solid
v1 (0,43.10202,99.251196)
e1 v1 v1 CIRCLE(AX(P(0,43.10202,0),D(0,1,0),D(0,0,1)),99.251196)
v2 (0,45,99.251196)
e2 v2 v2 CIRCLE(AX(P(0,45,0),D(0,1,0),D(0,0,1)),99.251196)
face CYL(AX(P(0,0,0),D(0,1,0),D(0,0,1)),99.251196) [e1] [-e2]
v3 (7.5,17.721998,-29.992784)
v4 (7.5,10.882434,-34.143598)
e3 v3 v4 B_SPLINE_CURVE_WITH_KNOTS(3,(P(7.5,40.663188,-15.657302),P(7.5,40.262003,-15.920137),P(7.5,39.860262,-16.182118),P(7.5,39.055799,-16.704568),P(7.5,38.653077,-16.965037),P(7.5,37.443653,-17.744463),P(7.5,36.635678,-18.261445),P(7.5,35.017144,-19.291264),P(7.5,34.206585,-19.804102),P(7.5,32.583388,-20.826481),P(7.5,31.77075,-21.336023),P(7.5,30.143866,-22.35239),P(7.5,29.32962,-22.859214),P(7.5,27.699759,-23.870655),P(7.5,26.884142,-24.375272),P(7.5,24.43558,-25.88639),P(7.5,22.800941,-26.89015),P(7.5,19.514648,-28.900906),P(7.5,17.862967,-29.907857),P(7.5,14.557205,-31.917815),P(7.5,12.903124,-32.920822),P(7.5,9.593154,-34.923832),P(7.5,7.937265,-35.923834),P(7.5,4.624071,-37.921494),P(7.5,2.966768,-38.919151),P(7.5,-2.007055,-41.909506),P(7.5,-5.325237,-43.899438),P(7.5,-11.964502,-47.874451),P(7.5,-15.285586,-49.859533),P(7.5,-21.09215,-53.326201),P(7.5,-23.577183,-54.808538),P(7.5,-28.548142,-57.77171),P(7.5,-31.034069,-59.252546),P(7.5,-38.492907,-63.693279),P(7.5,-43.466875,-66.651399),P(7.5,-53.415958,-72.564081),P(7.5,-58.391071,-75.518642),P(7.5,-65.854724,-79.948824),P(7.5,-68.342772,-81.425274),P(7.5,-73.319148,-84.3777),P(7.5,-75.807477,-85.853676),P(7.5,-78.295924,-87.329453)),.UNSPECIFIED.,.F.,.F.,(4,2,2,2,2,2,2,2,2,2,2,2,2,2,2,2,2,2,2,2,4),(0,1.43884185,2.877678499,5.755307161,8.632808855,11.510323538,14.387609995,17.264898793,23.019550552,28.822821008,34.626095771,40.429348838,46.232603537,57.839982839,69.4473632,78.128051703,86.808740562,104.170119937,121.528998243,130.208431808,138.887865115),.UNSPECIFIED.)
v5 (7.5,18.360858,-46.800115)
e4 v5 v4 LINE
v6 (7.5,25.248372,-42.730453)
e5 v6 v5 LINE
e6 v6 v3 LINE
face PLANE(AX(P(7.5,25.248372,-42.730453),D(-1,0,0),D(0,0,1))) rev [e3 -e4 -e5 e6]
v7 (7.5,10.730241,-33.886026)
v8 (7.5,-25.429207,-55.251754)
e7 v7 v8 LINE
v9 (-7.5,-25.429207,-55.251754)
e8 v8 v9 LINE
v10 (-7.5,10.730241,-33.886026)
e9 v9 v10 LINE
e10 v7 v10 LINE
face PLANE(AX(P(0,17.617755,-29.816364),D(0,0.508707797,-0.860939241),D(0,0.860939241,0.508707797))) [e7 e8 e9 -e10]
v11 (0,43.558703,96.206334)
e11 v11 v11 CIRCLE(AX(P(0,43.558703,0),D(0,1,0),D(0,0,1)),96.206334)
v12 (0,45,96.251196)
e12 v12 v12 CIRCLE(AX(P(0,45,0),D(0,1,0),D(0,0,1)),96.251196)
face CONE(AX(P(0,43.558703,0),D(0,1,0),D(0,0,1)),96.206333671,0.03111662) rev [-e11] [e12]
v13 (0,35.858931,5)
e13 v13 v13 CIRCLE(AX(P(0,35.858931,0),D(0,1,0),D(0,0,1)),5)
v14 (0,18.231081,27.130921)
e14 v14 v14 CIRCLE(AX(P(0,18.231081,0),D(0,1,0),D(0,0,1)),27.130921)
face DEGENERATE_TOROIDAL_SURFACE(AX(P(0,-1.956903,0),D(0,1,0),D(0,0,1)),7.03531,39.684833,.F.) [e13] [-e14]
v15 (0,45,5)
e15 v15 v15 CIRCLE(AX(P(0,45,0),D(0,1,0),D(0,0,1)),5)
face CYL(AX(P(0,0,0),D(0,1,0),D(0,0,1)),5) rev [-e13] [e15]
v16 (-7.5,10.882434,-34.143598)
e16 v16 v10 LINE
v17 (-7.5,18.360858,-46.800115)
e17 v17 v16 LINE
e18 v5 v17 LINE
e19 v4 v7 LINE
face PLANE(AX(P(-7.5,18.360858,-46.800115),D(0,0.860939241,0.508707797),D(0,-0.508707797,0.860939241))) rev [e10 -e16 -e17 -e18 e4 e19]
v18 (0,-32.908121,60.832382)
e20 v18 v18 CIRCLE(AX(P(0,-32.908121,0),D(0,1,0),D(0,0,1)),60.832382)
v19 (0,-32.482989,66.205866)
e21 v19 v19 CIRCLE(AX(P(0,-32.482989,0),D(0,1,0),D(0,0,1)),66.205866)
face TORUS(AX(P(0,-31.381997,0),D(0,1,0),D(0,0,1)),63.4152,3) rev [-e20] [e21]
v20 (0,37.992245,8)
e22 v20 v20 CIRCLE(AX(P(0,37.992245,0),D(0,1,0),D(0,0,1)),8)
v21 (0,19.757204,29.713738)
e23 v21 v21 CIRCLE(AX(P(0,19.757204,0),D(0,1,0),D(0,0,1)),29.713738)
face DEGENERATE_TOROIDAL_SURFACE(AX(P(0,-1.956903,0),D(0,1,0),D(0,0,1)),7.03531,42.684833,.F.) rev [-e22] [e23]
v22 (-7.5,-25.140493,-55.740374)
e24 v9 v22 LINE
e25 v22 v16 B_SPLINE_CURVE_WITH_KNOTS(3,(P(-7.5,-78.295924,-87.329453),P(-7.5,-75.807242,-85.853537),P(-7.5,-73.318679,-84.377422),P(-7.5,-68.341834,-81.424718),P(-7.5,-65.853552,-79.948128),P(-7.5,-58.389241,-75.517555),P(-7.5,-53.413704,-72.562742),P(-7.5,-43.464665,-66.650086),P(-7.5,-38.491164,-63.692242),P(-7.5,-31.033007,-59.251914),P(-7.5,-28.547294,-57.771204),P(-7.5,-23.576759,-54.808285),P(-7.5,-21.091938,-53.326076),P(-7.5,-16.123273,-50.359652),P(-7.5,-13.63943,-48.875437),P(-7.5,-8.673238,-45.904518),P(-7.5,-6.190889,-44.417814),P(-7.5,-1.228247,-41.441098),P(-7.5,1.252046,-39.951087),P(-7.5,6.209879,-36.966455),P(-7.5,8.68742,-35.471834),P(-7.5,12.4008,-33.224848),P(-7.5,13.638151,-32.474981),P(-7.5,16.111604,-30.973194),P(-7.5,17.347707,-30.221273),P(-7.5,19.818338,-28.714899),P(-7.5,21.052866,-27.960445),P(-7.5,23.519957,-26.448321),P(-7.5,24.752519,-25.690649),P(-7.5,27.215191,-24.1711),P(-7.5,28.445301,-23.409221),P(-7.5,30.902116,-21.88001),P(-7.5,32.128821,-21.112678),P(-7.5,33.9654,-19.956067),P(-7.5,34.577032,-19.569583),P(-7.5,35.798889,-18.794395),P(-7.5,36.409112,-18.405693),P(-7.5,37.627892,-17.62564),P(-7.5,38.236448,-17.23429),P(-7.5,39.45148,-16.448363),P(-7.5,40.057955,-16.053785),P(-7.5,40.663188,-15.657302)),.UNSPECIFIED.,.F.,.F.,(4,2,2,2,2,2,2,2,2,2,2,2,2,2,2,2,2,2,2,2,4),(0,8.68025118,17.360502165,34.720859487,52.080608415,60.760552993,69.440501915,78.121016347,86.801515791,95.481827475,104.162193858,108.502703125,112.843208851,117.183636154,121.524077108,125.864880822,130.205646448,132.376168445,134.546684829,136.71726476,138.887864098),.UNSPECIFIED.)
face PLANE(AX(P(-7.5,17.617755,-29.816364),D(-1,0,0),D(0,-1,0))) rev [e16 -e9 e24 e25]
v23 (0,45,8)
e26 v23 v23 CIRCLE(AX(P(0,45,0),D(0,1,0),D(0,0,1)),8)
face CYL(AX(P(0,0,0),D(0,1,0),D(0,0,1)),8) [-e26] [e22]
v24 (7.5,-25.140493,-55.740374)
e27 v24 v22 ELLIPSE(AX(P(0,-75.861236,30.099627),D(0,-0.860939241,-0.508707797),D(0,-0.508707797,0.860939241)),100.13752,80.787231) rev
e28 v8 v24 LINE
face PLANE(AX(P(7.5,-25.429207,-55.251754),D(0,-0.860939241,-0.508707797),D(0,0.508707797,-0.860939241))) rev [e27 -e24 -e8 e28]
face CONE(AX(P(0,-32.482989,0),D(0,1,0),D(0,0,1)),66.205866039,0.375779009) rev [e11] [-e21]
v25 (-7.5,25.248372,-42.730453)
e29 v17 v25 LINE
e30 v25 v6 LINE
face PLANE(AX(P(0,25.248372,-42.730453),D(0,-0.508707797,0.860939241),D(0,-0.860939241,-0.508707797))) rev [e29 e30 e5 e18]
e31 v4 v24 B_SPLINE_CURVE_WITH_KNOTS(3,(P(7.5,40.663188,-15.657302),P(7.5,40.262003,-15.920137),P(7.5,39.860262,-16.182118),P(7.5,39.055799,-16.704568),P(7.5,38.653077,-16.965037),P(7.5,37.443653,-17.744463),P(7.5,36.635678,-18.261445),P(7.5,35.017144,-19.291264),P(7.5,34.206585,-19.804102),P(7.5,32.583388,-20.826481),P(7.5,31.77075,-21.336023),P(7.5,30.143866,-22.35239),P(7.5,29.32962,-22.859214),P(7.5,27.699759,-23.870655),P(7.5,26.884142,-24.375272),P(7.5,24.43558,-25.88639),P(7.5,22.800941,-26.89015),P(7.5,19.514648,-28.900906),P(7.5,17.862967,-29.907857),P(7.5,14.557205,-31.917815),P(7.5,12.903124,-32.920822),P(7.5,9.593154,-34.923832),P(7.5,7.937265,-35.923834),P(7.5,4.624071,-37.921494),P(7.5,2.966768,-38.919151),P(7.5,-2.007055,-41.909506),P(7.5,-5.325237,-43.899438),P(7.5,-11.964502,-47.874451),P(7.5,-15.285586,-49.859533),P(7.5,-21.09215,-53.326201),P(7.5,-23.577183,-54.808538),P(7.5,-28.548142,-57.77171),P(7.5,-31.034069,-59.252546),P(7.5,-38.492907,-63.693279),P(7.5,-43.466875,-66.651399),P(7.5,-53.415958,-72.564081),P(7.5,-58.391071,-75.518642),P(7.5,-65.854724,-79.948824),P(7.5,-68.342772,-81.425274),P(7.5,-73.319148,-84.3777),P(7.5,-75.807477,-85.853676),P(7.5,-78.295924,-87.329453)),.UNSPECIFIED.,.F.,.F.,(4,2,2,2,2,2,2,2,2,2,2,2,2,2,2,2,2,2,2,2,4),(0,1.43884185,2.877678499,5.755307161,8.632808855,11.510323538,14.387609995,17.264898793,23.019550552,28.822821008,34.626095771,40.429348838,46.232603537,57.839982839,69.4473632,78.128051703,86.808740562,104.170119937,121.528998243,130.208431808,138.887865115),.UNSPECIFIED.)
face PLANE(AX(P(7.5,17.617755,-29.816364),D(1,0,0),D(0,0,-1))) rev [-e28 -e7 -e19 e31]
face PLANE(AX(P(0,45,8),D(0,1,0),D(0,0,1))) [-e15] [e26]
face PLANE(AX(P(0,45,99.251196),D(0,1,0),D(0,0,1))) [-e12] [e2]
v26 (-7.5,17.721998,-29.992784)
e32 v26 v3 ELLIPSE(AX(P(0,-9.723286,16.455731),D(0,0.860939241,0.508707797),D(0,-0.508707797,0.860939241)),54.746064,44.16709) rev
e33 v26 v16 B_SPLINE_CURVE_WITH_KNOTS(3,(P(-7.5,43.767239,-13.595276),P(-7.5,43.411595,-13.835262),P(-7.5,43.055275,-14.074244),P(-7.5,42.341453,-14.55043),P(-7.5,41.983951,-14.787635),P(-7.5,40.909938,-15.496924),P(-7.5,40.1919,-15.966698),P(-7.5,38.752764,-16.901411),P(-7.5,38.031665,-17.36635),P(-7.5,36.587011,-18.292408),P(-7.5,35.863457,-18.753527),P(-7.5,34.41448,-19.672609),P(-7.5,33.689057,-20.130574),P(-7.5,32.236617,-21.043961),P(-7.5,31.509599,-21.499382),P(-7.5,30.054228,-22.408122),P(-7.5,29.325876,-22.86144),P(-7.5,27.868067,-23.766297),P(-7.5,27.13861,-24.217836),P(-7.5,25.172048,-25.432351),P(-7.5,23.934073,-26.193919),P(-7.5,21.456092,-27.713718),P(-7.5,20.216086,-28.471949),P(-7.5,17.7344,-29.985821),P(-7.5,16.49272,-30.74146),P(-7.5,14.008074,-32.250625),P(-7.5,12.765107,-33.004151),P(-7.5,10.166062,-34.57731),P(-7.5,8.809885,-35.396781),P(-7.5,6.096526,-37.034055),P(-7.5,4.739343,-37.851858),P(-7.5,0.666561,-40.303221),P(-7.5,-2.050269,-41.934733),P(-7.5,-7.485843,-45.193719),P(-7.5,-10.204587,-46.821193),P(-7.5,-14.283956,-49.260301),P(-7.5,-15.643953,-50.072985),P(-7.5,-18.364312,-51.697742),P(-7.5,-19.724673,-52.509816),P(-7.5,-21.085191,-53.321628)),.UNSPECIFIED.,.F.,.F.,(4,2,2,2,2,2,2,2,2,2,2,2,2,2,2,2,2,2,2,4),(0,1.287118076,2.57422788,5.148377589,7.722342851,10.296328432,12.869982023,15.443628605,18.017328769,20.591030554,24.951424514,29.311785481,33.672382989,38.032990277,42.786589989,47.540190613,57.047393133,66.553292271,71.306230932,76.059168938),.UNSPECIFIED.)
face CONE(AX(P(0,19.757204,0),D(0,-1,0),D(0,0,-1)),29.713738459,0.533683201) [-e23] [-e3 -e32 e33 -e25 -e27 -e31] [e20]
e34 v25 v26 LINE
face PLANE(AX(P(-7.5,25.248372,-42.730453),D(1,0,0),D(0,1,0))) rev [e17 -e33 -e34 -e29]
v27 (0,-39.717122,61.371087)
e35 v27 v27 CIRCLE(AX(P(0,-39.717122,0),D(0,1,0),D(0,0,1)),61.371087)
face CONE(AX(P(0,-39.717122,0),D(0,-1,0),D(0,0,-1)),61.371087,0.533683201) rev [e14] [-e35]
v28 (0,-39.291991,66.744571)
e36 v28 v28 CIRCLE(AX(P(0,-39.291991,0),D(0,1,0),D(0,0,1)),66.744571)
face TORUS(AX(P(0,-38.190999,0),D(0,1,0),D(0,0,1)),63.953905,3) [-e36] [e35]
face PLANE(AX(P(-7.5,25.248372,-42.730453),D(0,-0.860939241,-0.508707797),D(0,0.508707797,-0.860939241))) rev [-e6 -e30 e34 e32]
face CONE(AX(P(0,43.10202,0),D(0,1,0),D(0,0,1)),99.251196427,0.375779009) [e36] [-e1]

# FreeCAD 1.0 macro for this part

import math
import FreeCAD as App
import Part
import Sketcher

V = App.Vector

doc = App.newDocument("Part")
body = doc.addObject("PartDesign::Body", "Body")

# Sketch on YZ plane
sketch1 = body.newObject("Sketcher::SketchObject", "Sketch")
sketch1.AttachmentSupport = (doc.getObject("YZ_Plane"), [""])
sketch1.MapMode = "FlatFace"
sketch1.addGeometry(Part.LineSegment(V(-39.717122, 61.371087, 0), V(18.231081, 27.130921, 0)), False)
sketch1.addGeometry(Part.ArcOfCircle(Part.Circle(V(-1.956903, -7.03531, 0), V(0, 0, 1), 39.684833), math.radians(17.65425), math.radians(59.422205)), False)
sketch1.addGeometry(Part.LineSegment(V(35.858931, 5, 0), V(45, 5, 0)), False)
sketch1.addGeometry(Part.LineSegment(V(45, 5, 0), V(45, 8, 0)), False)
sketch1.addGeometry(Part.LineSegment(V(45, 8, 0), V(37.992245, 8, 0)), False)
sketch1.addGeometry(Part.ArcOfCircle(Part.Circle(V(-1.956903, -7.03531, 0), V(0, 0, 1), 42.684833), math.radians(20.624391), math.radians(59.422205)), False)
sketch1.addGeometry(Part.LineSegment(V(19.757204, 29.713738, 0), V(-32.908121, 60.832382, 0)), False)
sketch1.addGeometry(Part.ArcOfCircle(Part.Circle(V(-31.381997, 63.4152, 0), V(0, 0, 1), 3), math.radians(111.530551), math.radians(239.422205)), False)
sketch1.addGeometry(Part.LineSegment(V(-32.482989, 66.205866, 0), V(43.558703, 96.206334, 0)), False)
sketch1.addGeometry(Part.LineSegment(V(43.558703, 96.206334, 0), V(45, 96.251196, 0)), False)
sketch1.addGeometry(Part.LineSegment(V(45, 96.251196, 0), V(45, 99.251196, 0)), False)
sketch1.addGeometry(Part.LineSegment(V(45, 99.251196, 0), V(43.10202, 99.251196, 0)), False)
sketch1.addGeometry(Part.LineSegment(V(43.10202, 99.251196, 0), V(-39.291991, 66.744571, 0)), False)
sketch1.addGeometry(Part.ArcOfCircle(Part.Circle(V(-38.190999, 63.953905, 0), V(0, 0, 1), 3), math.radians(111.530551), math.radians(239.422205)), False)
sketch1.addConstraint(Sketcher.Constraint("Tangent", 0, 2, 1, 2))
sketch1.addConstraint(Sketcher.Constraint("Coincident", 1, 1, 2, 1))
sketch1.addConstraint(Sketcher.Constraint("Coincident", 2, 2, 3, 1))
sketch1.addConstraint(Sketcher.Constraint("Coincident", 3, 2, 4, 1))
sketch1.addConstraint(Sketcher.Constraint("Coincident", 4, 2, 5, 1))
sketch1.addConstraint(Sketcher.Constraint("Tangent", 5, 2, 6, 1))
sketch1.addConstraint(Sketcher.Constraint("Tangent", 6, 2, 7, 2))
sketch1.addConstraint(Sketcher.Constraint("Tangent", 7, 1, 8, 1))
sketch1.addConstraint(Sketcher.Constraint("Coincident", 8, 2, 9, 1))
sketch1.addConstraint(Sketcher.Constraint("Coincident", 9, 2, 10, 1))
sketch1.addConstraint(Sketcher.Constraint("Coincident", 10, 2, 11, 1))
sketch1.addConstraint(Sketcher.Constraint("Coincident", 11, 2, 12, 1))
sketch1.addConstraint(Sketcher.Constraint("Tangent", 12, 2, 13, 1))
sketch1.addConstraint(Sketcher.Constraint("Tangent", 13, 2, 0, 1))
sketch1.addConstraint(Sketcher.Constraint("Horizontal", 2))
sketch1.addConstraint(Sketcher.Constraint("Vertical", 3))
sketch1.addConstraint(Sketcher.Constraint("Horizontal", 4))
sketch1.addConstraint(Sketcher.Constraint("Vertical", 10))
sketch1.addConstraint(Sketcher.Constraint("Horizontal", 11))
sketch1.addConstraint(Sketcher.Constraint("Coincident", 5, 3, 1, 3))
sketch1.addConstraint(Sketcher.Constraint("Equal", 7, 13))
sketch1.addConstraint(Sketcher.Constraint("Parallel", 0, 6))
sketch1.addConstraint(Sketcher.Constraint("Parallel", 8, 12))
sketch1.addConstraint(Sketcher.Constraint("Vertical", 3, 2, 9, 2))
sketch1.addConstraint(Sketcher.Constraint("Equal", 3, 10))
sketch1.addConstraint(Sketcher.Constraint("Radius", 7, 3.0))
sketch1.addConstraint(Sketcher.Constraint("DistanceY", 3, 1, 3, 2, 3.0))
sketch1.addConstraint(Sketcher.Constraint("DistanceY", -1, 1, 1, 1, 5.0))
sketch1.addConstraint(Sketcher.Constraint("DistanceX", -1, 1, 2, 2, 45.0))
sketch1.addConstraint(Sketcher.Constraint("DistanceX", 13, 3, -1, 1, 38.190999))
sketch1.addConstraint(Sketcher.Constraint("Radius", 1, 39.684833))
sketch1.addConstraint(Sketcher.Constraint("Radius", 5, 42.684833))
sketch1.addConstraint(Sketcher.Constraint("DistanceX", 13, 3, 7, 3, 6.809001))
sketch1.addConstraint(Sketcher.Constraint("DistanceX", 2, 1, 2, 2, 9.141069))
sketch1.addConstraint(Sketcher.Constraint("DistanceX", 11, 2, 11, 1, 1.89798))
sketch1.addConstraint(Sketcher.Constraint("DistanceY", -1, 1, 7, 3, 63.4152))
sketch1.addConstraint(Sketcher.Constraint("DistanceX", 6, 2, 0, 2, 51.139202))
sketch1.addConstraint(Sketcher.Constraint("DistanceX", 5, 2, 8, 2, 23.801499))
sketch1.addConstraint(Sketcher.Constraint("DistanceX", 7, 1, -1, 1, 32.482989))
revolution = body.newObject("PartDesign::Revolution", "Revolution")
revolution.Profile = sketch1
revolution.ReferenceAxis = (sketch1, ["H_Axis"])
revolution.Angle = 360

# Sketch on an angled plane
sketch2 = body.newObject("Sketcher::SketchObject", "Sketch001")
sketch2.Placement = App.Placement(V(0, 18.126463, -30.677303), App.Rotation(V(-1, 0, 0), V(0, 0.860939241, 0.508707797), V(0, 0.508707797, -0.860939241), "ZXY"))
sketch2.addGeometry(Part.LineSegment(V(-7.5, 0, 0), V(-7.5, -50, 0)), False)
sketch2.addGeometry(Part.LineSegment(V(-7.5, -50, 0), V(7.5, -50, 0)), False)
sketch2.addGeometry(Part.LineSegment(V(7.5, -50, 0), V(7.5, 0, 0)), False)
sketch2.addGeometry(Part.LineSegment(V(7.5, 0, 0), V(-7.5, 0, 0)), False)
sketch2.addConstraint(Sketcher.Constraint("Coincident", 0, 2, 1, 1))
sketch2.addConstraint(Sketcher.Constraint("Coincident", 1, 2, 2, 1))
sketch2.addConstraint(Sketcher.Constraint("Coincident", 2, 2, 3, 1))
sketch2.addConstraint(Sketcher.Constraint("Coincident", 3, 2, 0, 1))
sketch2.addConstraint(Sketcher.Constraint("Vertical", 0))
sketch2.addConstraint(Sketcher.Constraint("Horizontal", 1))
sketch2.addConstraint(Sketcher.Constraint("Vertical", 2))
sketch2.addConstraint(Sketcher.Constraint("Horizontal", 3))
sketch2.addConstraint(Sketcher.Constraint("Symmetric", 2, 2, 3, 2, -1, 1))
sketch2.addConstraint(Sketcher.Constraint("DistanceX", 1, 1, 1, 2, 15.0))
sketch2.addConstraint(Sketcher.Constraint("DistanceY", 0, 2, 0, 1, 50.0))
pocket1 = body.newObject("PartDesign::Pocket", "Pocket")
pocket1.Profile = sketch2
pocket1.Length = 1

# Sketch on an angled plane
sketch3 = body.newObject("Sketcher::SketchObject", "Sketch002")
sketch3.Placement = App.Placement(V(0, 17.617755, -29.816364), App.Rotation(V(-1, 0, 0), V(0, 0.860939241, 0.508707797), V(0, 0.508707797, -0.860939241), "ZXY"))
sketch3.addGeometry(Part.LineSegment(V(-7.5, 0, 0), V(-7.5, -8, 0)), False)
sketch3.addGeometry(Part.LineSegment(V(-7.5, -8, 0), V(7.5, -8, 0)), False)
sketch3.addGeometry(Part.LineSegment(V(7.5, -8, 0), V(7.5, 0, 0)), False)
sketch3.addGeometry(Part.LineSegment(V(7.5, 0, 0), V(-7.5, 0, 0)), False)
sketch3.addConstraint(Sketcher.Constraint("Coincident", 0, 2, 1, 1))
sketch3.addConstraint(Sketcher.Constraint("Coincident", 1, 2, 2, 1))
sketch3.addConstraint(Sketcher.Constraint("Coincident", 2, 2, 3, 1))
sketch3.addConstraint(Sketcher.Constraint("Coincident", 3, 2, 0, 1))
sketch3.addConstraint(Sketcher.Constraint("Vertical", 0))
sketch3.addConstraint(Sketcher.Constraint("Horizontal", 1))
sketch3.addConstraint(Sketcher.Constraint("Vertical", 2))
sketch3.addConstraint(Sketcher.Constraint("Horizontal", 3))
sketch3.addConstraint(Sketcher.Constraint("Symmetric", 2, 2, 3, 2, -1, 1))
sketch3.addConstraint(Sketcher.Constraint("DistanceX", 1, 1, 1, 2, 15.0))
sketch3.addConstraint(Sketcher.Constraint("DistanceY", 0, 2, 0, 1, 8.0))
pad1 = body.newObject("PartDesign::Pad", "Pad")
pad1.Profile = sketch3
pad1.Length = 15

doc.recompute()
